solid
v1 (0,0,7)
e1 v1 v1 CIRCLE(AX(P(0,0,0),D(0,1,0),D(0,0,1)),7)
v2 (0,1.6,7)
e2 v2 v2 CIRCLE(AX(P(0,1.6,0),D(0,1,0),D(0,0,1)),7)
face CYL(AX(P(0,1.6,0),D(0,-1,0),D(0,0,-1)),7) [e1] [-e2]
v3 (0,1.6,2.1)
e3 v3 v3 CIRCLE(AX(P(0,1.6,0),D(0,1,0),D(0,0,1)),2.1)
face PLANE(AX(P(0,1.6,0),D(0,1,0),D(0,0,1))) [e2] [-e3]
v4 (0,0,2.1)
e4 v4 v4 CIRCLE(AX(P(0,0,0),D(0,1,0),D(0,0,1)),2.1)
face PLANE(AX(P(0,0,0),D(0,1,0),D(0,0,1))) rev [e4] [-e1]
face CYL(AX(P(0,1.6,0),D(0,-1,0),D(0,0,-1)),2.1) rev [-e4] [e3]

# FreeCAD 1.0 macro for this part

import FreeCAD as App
import Part
import Sketcher

V = App.Vector

doc = App.newDocument("Part")
body = doc.addObject("PartDesign::Body", "Body")

# Sketch on XZ plane
sketch1 = body.newObject("Sketcher::SketchObject", "Sketch")
sketch1.AttachmentSupport = (doc.getObject("XZ_Plane"), [""])
sketch1.MapMode = "FlatFace"
sketch1.addGeometry(Part.Circle(V(0, 0, 0), V(0, 0, 1), 7), False)
sketch1.addGeometry(Part.Circle(V(0, 0, 0), V(0, 0, 1), 2.1), False)
sketch1.addConstraint(Sketcher.Constraint("Coincident", 0, 3, -1, 1))
sketch1.addConstraint(Sketcher.Constraint("Coincident", 1, 3, -1, 1))
sketch1.addConstraint(Sketcher.Constraint("Diameter", 0, 14.0))
sketch1.addConstraint(Sketcher.Constraint("Diameter", 1, 4.2))
pad1 = body.newObject("PartDesign::Pad", "Pad")
pad1.Profile = sketch1
pad1.Length = 1.6
pad1.Reversed = True

doc.recompute()
